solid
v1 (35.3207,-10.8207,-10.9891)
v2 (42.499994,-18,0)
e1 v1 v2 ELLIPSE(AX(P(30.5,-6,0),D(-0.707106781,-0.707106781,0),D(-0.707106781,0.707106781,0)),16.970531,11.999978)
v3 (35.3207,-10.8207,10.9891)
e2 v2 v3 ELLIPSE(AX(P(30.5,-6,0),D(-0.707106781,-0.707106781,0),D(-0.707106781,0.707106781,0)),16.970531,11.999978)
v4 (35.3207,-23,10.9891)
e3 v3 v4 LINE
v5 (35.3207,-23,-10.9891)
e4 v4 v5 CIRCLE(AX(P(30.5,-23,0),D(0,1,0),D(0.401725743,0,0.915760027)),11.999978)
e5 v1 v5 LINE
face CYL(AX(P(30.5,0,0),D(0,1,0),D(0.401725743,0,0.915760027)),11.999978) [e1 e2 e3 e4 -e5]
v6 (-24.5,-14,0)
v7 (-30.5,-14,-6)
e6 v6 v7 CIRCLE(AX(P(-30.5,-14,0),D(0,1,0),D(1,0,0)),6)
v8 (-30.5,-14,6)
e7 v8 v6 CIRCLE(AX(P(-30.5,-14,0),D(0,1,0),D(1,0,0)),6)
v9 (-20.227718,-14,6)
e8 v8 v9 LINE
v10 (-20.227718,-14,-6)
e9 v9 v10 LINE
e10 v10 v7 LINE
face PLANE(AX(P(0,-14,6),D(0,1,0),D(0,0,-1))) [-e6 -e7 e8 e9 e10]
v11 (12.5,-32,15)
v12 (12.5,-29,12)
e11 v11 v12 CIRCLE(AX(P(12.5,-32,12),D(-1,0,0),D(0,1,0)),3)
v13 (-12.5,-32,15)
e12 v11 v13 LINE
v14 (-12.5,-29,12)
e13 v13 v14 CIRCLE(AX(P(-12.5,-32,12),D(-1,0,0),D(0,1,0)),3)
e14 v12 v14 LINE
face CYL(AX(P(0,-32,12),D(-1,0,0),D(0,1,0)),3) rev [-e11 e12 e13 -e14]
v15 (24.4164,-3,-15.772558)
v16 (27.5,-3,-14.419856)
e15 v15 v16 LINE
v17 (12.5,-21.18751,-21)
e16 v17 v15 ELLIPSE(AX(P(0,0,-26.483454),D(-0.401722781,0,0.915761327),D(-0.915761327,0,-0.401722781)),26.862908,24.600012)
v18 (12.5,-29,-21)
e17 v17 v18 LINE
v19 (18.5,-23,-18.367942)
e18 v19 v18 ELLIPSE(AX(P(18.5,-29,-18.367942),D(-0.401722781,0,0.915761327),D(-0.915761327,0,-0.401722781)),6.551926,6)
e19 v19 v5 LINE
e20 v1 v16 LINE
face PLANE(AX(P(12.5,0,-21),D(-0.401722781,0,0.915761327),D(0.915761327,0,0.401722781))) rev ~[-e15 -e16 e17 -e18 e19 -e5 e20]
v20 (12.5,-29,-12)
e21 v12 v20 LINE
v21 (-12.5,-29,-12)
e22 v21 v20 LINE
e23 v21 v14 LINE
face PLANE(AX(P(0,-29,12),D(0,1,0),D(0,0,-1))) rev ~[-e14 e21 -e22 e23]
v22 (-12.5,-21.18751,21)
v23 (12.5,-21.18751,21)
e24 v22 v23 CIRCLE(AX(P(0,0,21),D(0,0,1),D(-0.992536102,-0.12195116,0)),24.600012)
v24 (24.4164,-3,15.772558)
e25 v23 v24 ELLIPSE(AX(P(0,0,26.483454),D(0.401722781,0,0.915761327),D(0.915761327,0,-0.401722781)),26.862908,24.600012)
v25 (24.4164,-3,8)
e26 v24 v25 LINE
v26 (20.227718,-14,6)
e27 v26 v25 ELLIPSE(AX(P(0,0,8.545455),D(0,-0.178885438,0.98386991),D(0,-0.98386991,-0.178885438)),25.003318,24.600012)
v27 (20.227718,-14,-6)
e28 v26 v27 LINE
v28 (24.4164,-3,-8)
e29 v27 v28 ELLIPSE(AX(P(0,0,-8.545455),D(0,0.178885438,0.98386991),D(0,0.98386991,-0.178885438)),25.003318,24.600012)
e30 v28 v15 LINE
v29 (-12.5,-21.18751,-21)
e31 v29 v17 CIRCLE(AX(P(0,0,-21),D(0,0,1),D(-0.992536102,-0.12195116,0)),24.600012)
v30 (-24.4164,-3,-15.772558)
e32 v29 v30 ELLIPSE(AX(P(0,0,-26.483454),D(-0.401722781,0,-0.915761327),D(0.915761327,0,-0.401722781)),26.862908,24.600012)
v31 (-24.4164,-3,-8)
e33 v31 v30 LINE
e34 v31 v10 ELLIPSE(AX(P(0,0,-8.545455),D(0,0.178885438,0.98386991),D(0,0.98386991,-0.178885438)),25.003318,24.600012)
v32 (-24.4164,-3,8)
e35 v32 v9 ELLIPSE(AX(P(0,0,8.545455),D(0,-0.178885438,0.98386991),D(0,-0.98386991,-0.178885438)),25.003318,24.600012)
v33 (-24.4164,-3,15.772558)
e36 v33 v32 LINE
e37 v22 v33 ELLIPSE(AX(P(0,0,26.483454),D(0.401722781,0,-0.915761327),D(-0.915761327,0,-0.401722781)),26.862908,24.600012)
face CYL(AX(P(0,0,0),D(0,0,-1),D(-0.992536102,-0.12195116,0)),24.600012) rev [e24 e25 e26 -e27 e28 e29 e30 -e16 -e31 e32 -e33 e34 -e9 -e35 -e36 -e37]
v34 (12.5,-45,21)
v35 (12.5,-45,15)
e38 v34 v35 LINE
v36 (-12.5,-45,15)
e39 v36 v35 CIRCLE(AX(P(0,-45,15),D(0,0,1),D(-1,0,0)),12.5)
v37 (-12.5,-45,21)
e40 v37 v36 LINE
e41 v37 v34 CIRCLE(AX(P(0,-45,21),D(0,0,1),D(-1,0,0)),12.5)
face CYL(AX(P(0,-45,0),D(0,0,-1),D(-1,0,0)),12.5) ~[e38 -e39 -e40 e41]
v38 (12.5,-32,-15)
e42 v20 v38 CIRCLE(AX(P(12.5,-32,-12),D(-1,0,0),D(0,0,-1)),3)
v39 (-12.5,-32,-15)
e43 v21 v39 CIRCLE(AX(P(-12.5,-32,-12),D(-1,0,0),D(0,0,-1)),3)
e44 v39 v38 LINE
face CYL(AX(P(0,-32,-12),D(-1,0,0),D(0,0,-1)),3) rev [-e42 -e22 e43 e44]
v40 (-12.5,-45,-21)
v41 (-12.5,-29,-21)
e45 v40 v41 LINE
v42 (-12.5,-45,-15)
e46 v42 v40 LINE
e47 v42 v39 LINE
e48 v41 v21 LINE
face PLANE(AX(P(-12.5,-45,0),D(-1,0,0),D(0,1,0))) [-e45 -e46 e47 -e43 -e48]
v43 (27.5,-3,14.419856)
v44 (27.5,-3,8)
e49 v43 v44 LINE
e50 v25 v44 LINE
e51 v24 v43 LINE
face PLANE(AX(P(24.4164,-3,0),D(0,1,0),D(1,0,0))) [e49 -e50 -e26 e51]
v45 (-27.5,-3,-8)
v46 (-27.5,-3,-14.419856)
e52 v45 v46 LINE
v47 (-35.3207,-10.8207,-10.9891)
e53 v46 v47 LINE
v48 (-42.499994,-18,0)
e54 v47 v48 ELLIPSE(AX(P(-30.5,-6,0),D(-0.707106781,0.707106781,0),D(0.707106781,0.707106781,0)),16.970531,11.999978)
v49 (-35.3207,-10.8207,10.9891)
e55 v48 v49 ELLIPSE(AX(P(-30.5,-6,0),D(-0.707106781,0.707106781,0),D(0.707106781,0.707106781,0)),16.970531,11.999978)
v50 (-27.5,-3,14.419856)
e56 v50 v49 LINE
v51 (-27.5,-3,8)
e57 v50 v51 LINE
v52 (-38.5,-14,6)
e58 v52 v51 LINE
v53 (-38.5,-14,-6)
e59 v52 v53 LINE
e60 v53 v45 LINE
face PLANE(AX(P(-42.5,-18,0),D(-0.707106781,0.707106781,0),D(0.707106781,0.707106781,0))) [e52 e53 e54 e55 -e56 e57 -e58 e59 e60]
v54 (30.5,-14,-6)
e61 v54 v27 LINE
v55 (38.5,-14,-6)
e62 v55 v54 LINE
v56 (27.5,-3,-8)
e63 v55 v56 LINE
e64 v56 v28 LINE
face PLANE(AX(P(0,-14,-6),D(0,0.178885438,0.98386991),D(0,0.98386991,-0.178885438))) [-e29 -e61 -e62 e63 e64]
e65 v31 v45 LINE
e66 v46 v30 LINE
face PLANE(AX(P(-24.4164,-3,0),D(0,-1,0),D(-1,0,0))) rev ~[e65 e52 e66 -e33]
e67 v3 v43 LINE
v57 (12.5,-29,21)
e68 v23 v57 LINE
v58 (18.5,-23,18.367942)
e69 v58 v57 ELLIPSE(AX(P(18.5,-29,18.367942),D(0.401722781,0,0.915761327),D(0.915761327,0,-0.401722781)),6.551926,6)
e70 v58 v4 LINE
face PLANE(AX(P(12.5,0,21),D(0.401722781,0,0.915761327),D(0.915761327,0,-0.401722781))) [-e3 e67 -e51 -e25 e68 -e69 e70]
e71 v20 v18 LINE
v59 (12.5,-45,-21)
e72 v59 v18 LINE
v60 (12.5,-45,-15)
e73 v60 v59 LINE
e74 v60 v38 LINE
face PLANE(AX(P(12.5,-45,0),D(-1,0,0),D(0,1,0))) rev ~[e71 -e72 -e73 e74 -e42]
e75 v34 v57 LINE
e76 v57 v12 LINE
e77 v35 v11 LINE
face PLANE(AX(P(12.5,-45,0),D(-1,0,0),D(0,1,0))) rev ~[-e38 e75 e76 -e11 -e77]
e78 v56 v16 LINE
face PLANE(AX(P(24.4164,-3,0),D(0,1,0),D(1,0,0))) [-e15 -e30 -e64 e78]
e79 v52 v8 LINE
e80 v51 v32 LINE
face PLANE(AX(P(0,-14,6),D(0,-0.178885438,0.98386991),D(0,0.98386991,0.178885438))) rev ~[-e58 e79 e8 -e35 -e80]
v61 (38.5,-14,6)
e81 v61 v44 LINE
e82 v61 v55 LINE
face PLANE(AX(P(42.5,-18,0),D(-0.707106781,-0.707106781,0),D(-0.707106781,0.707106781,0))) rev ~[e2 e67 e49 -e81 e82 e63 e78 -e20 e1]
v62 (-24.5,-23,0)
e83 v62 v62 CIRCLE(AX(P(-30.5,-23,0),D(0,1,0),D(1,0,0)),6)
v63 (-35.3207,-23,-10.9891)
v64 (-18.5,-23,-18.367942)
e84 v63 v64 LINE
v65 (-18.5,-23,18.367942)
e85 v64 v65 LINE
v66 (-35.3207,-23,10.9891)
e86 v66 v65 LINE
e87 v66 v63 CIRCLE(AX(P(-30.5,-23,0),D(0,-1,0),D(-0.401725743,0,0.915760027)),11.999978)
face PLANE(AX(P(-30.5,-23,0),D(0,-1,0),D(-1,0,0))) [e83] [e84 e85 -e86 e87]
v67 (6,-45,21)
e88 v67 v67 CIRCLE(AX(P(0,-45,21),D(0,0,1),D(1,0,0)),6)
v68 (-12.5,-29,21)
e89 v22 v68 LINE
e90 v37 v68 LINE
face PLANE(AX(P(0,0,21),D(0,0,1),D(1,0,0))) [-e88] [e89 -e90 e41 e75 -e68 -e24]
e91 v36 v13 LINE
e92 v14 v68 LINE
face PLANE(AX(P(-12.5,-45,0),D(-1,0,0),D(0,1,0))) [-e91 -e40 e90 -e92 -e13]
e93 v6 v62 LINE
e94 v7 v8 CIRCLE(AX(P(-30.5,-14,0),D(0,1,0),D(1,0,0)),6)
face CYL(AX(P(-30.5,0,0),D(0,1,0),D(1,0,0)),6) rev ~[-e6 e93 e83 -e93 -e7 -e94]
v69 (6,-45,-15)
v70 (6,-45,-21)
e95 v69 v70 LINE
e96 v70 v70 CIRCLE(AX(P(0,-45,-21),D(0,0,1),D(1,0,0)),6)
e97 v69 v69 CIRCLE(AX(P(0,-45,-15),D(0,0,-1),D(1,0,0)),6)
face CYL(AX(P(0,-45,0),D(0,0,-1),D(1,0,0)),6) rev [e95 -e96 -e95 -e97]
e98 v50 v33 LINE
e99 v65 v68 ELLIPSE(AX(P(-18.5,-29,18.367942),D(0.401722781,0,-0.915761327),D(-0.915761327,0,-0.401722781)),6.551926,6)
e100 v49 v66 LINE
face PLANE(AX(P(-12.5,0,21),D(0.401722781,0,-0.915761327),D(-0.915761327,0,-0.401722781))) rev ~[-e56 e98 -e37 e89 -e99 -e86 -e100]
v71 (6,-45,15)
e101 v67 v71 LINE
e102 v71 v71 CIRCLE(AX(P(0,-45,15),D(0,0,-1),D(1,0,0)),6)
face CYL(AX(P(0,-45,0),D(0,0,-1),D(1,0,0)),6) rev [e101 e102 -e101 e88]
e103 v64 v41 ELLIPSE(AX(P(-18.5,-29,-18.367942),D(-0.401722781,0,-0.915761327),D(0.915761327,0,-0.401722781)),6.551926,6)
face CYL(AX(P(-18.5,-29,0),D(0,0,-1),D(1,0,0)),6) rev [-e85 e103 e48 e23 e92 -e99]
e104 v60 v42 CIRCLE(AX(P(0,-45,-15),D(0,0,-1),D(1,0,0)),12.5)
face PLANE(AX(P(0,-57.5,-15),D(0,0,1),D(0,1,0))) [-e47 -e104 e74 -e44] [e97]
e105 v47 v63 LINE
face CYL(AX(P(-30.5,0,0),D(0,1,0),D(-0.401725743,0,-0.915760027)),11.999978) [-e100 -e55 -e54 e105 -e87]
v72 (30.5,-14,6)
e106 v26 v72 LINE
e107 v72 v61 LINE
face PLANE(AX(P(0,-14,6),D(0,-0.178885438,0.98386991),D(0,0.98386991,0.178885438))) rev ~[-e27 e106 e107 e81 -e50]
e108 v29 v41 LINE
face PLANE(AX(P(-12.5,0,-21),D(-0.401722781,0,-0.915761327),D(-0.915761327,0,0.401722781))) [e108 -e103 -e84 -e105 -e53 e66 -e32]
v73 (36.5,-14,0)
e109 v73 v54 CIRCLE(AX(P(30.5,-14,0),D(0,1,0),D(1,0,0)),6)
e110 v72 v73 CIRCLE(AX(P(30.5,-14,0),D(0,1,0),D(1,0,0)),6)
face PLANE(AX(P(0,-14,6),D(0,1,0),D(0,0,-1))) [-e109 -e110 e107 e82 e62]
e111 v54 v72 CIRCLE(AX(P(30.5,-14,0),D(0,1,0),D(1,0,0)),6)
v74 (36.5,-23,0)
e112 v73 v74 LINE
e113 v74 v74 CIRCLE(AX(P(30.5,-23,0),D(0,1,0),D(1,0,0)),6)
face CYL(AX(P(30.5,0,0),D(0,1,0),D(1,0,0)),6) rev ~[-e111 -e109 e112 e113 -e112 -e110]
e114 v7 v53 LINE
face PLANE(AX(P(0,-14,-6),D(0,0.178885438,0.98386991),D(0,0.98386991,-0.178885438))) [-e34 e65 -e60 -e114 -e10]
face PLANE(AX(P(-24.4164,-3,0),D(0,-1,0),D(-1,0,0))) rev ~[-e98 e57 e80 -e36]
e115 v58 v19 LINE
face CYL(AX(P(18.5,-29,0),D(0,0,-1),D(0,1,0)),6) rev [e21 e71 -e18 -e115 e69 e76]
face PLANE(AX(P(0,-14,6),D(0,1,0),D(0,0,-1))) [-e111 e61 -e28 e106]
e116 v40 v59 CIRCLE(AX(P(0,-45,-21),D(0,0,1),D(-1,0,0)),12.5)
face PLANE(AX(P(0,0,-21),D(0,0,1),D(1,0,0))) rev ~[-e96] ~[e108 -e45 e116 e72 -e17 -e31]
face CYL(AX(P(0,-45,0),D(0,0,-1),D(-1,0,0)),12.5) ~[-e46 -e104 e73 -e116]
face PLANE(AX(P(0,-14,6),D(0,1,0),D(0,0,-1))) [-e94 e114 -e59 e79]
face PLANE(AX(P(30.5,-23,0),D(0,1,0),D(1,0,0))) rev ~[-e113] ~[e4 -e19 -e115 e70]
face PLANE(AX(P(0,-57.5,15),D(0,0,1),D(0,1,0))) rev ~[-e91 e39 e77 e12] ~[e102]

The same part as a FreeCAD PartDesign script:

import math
import FreeCAD as App
import Part
import Sketcher
from FreeCAD import Vector
Q = App.Units.Quantity


def add_polygon(sketch, points):
    """Adds a closed chain of lines whose ends are joined by coincident constraints."""
    first, n = sketch.GeometryCount, len(points)
    for a, b in zip(points, points[1:] + points[:1]):
        sketch.addGeometry(Part.LineSegment(App.Vector(*a, 0), App.Vector(*b, 0)), False)
    for i in range(n):
        sketch.addConstraint(Sketcher.Constraint("Coincident", first + i, 2, first + (i + 1) % n, 1))

doc = App.newDocument("Part")
body = doc.addObject("PartDesign::Body", "Body")

# Sketch on XY plane
sketch1 = body.newObject("Sketcher::SketchObject", "Sketch")
sketch1.AttachmentSupport = (doc.getObject("XY_Plane"), [""])
sketch1.MapMode = "FlatFace"
sketch1.addGeometry([
    Part.LineSegment(Vector(-42.5, -23, 0), Vector(-18.5, -23, 0)),  # 0
    Part.ArcOfCircle(Part.Circle(Vector(-18.5, -29, 0), Vector(0, 0, 1), 6), math.radians(0), math.radians(90)),  # 1
    Part.LineSegment(Vector(-12.5, -29, 0), Vector(-12.5, -45, 0)),  # 2
    Part.ArcOfCircle(Part.Circle(Vector(0, -45, 0), Vector(0, 0, 1), 12.5), math.radians(180), math.radians(360)),  # 3
    Part.LineSegment(Vector(12.5, -45, 0), Vector(12.5, -29, 0)),  # 4
    Part.ArcOfCircle(Part.Circle(Vector(18.5, -29, 0), Vector(0, 0, 1), 6), math.radians(90), math.radians(180)),  # 5
    Part.LineSegment(Vector(18.5, -23, 0), Vector(42.5, -23, 0)),  # 6
    Part.LineSegment(Vector(42.5, -23, 0), Vector(42.5, -18, 0)),  # 7
    Part.LineSegment(Vector(42.5, -18, 0), Vector(27.5, -3, 0)),  # 8
    Part.LineSegment(Vector(27.5, -3, 0), Vector(24.4, -3, 0)),  # 9
    Part.ArcOfCircle(Part.Circle(Vector(0, 0, 0), Vector(0, 0, 1), 24.6), math.radians(-173), math.radians(-7)),  # 10
    Part.LineSegment(Vector(-24.4, -3, 0), Vector(-27.5, -3, 0)),  # 11
    Part.LineSegment(Vector(-27.5, -3, 0), Vector(-42.5, -18, 0)),  # 12
    Part.LineSegment(Vector(-42.5, -18, 0), Vector(-42.5, -23, 0)),  # 13
    Part.Circle(Vector(0, -45, 0), Vector(0, 0, 1), 6),  # 14
], False)
sketch1.addConstraint([
    Sketcher.Constraint("Tangent", 0, 2, 1, 2),
    Sketcher.Constraint("Tangent", 1, 1, 2, 1),
    Sketcher.Constraint("Tangent", 2, 2, 3, 1),
    Sketcher.Constraint("Tangent", 3, 2, 4, 1),
    Sketcher.Constraint("Tangent", 4, 2, 5, 2),
    Sketcher.Constraint("Tangent", 5, 1, 6, 1),
    Sketcher.Constraint("Coincident", 6, 2, 7, 1),
    Sketcher.Constraint("Coincident", 7, 2, 8, 1),
    Sketcher.Constraint("Coincident", 8, 2, 9, 1),
    Sketcher.Constraint("Coincident", 9, 2, 10, 2),
    Sketcher.Constraint("Coincident", 10, 1, 11, 1),
    Sketcher.Constraint("Coincident", 11, 2, 12, 1),
    Sketcher.Constraint("Coincident", 12, 2, 13, 1),
    Sketcher.Constraint("Coincident", 13, 2, 0, 1),
    Sketcher.Constraint("Horizontal", 0),
    Sketcher.Constraint("Vertical", 2),
    Sketcher.Constraint("Vertical", 4),
    Sketcher.Constraint("Horizontal", 6),
    Sketcher.Constraint("Vertical", 7),
    Sketcher.Constraint("Horizontal", 9),
    Sketcher.Constraint("Horizontal", 11),
    Sketcher.Constraint("Vertical", 13),
    Sketcher.Constraint("Coincident", 10, 3, -1, 1),
    Sketcher.Constraint("Coincident", 14, 3, 3, 3),
    Sketcher.Constraint("Equal", 1, 5),
    Sketcher.Constraint("Equal", 5, 14),
    Sketcher.Constraint("Symmetric", 1, 3, 5, 3, -2),
    Sketcher.Constraint("Symmetric", 8, 2, 11, 2, -2),
    Sketcher.Constraint("Symmetric", 7, 2, 12, 2, -2),
    Sketcher.Constraint("Perpendicular", 8, 12),
    Sketcher.Constraint("Diameter", 14, Q("12 mm")),
    Sketcher.Constraint("Radius", 3, Q("12.5 mm")),
    Sketcher.Constraint("Radius", 10, Q("24.6 mm")),
    Sketcher.Constraint("DistanceY", 7, 1, 7, 2, Q("5 mm")),
    Sketcher.Constraint("DistanceY", 3, 3, -1, 1, Q("45 mm")),
    Sketcher.Constraint("DistanceY", 0, 2, -1, 1, Q("23 mm")),
    Sketcher.Constraint("DistanceY", 8, 2, -1, 1, Q("3 mm")),
    Sketcher.Constraint("DistanceX", 0, 1, 0, 2, Q("24 mm")),
])
pad1 = body.newObject("PartDesign::Pad", "Pad")
pad1.Profile = sketch1
pad1.Length = 42
pad1.Midplane = True

# Sketch on XZ plane
sketch2 = body.newObject("Sketcher::SketchObject", "Sketch001")
sketch2.AttachmentSupport = (doc.getObject("XZ_Plane"), [""])
sketch2.MapMode = "FlatFace"
sketch2.addGeometry([
    Part.LineSegment(Vector(-35, -11, 0), Vector(-12, -21, 0)),  # 0
    Part.LineSegment(Vector(-12, -21, 0), Vector(-42, -21, 0)),  # 1
    Part.LineSegment(Vector(-42, -21, 0), Vector(-42, 0, 0)),  # 2
    Part.ArcOfCircle(Part.Circle(Vector(-30, 0, 0), Vector(0, 0, 1), 12), math.radians(180), math.radians(246)),  # 3
    Part.LineSegment(Vector(42, -21, 0), Vector(12, -21, 0)),  # 4
    Part.LineSegment(Vector(12, -21, 0), Vector(35, -11, 0)),  # 5
    Part.ArcOfCircle(Part.Circle(Vector(30, 0, 0), Vector(0, 0, 1), 12), math.radians(-66), math.radians(0)),  # 6
    Part.LineSegment(Vector(42, 0, 0), Vector(42, -21, 0)),  # 7
    Part.ArcOfCircle(Part.Circle(Vector(-30, 0, 0), Vector(0, 0, 1), 12), math.radians(114), math.radians(180)),  # 8
    Part.LineSegment(Vector(-42, 0, 0), Vector(-42, 21, 0)),  # 9
    Part.LineSegment(Vector(-42, 21, 0), Vector(-12, 21, 0)),  # 10
    Part.LineSegment(Vector(-12, 21, 0), Vector(-35, 11, 0)),  # 11
    Part.LineSegment(Vector(42, 21, 0), Vector(42, 0, 0)),  # 12
    Part.ArcOfCircle(Part.Circle(Vector(30, 0, 0), Vector(0, 0, 1), 12), math.radians(0), math.radians(66)),  # 13
    Part.LineSegment(Vector(35, 11, 0), Vector(12, 21, 0)),  # 14
    Part.LineSegment(Vector(12, 21, 0), Vector(42, 21, 0)),  # 15
    Part.Circle(Vector(30, 0, 0), Vector(0, 0, 1), 6),  # 16
    Part.Circle(Vector(-30, 0, 0), Vector(0, 0, 1), 6),  # 17
], False)
sketch2.addConstraint([
    Sketcher.Constraint("Coincident", 0, 2, 1, 1),
    Sketcher.Constraint("Coincident", 1, 2, 2, 1),
    Sketcher.Constraint("Tangent", 2, 2, 3, 1),
    Sketcher.Constraint("Tangent", 3, 2, 0, 1),
    Sketcher.Constraint("Coincident", 4, 2, 5, 1),
    Sketcher.Constraint("Tangent", 5, 2, 6, 1),
    Sketcher.Constraint("Tangent", 6, 2, 7, 1),
    Sketcher.Constraint("Coincident", 7, 2, 4, 1),
    Sketcher.Constraint("Tangent", 8, 2, 9, 1),
    Sketcher.Constraint("Coincident", 9, 2, 10, 1),
    Sketcher.Constraint("Coincident", 10, 2, 11, 1),
    Sketcher.Constraint("Tangent", 11, 2, 8, 1),
    Sketcher.Constraint("Tangent", 12, 2, 13, 1),
    Sketcher.Constraint("Tangent", 13, 2, 14, 1),
    Sketcher.Constraint("Coincident", 14, 2, 15, 1),
    Sketcher.Constraint("Coincident", 15, 2, 12, 1),
    Sketcher.Constraint("Horizontal", 1),
    Sketcher.Constraint("Vertical", 2),
    Sketcher.Constraint("Horizontal", 4),
    Sketcher.Constraint("Vertical", 7),
    Sketcher.Constraint("Vertical", 9),
    Sketcher.Constraint("Horizontal", 10),
    Sketcher.Constraint("Vertical", 12),
    Sketcher.Constraint("Horizontal", 15),
    Sketcher.Constraint("Coincident", 8, 3, 3, 3),
    Sketcher.Constraint("Coincident", 13, 3, 6, 3),
    Sketcher.Constraint("Coincident", 16, 3, 6, 3),
    Sketcher.Constraint("Coincident", 17, 3, 3, 3),
    Sketcher.Constraint("Equal", 3, 6),
    Sketcher.Constraint("Equal", 6, 8),
    Sketcher.Constraint("Equal", 8, 13),
    Sketcher.Constraint("Equal", 16, 17),
    Sketcher.Constraint("Symmetric", 3, 3, 6, 3, -1, 1),
    Sketcher.Constraint("Symmetric", 4, 2, 10, 2, -1, 1),
    Sketcher.Constraint("Symmetric", 0, 2, 14, 2, -1, 1),
    Sketcher.Constraint("Symmetric", 0, 2, 4, 2, -2),
    Sketcher.Constraint("PointOnObject", 3, 3, -1),
    Sketcher.Constraint("Diameter", 16, Q("12 mm")),
    Sketcher.Constraint("Radius", 3, Q("12 mm")),
    Sketcher.Constraint("DistanceX", 0, 2, -1, 1, Q("12.5 mm")),
    Sketcher.Constraint("DistanceX", 1, 2, 1, 1, Q("30 mm")),
    Sketcher.Constraint("DistanceY", 2, 1, 2, 2, Q("21 mm")),
])
pocket1 = body.newObject("PartDesign::Pocket", "Pocket")
pocket1.Profile = sketch2
pocket1.Type = "ThroughAll"
pocket1.Reversed = True

# Sketch on YZ plane
sketch3 = body.newObject("Sketcher::SketchObject", "Sketch002")
sketch3.AttachmentSupport = (doc.getObject("YZ_Plane"), [""])
sketch3.MapMode = "FlatFace"
sketch3.addGeometry(Part.LineSegment(Vector(-57.5, 15, 0), Vector(-57.5, -15, 0)), False)  # 0
sketch3.addGeometry(Part.LineSegment(Vector(-57.5, -15, 0), Vector(-32, -15, 0)), False)  # 1
sketch3.addGeometry(Part.ArcOfCircle(Part.Circle(Vector(-32, -12, 0), Vector(0, 0, 1), 3), math.radians(-90), math.radians(0)), False)  # 2
sketch3.addGeometry(Part.LineSegment(Vector(-29, -12, 0), Vector(-29, 12, 0)), False)  # 3
sketch3.addGeometry(Part.ArcOfCircle(Part.Circle(Vector(-32, 12, 0), Vector(0, 0, 1), 3), math.radians(0), math.radians(90)), False)  # 4
sketch3.addGeometry(Part.LineSegment(Vector(-32, 15, 0), Vector(-57.5, 15, 0)), False)  # 5
add_polygon(sketch3, [(-3, -8), (-3, 8), (-14, 6), (-14, -6)])  # lines 6-9
sketch3.addConstraint([
    Sketcher.Constraint("Coincident", 0, 2, 1, 1),
    Sketcher.Constraint("Tangent", 1, 2, 2, 1),
    Sketcher.Constraint("Tangent", 2, 2, 3, 1),
    Sketcher.Constraint("Tangent", 3, 2, 4, 1),
    Sketcher.Constraint("Tangent", 4, 2, 5, 1),
    Sketcher.Constraint("Coincident", 5, 2, 0, 1),
    Sketcher.Constraint("Vertical", 0),
    Sketcher.Constraint("Horizontal", 1),
    Sketcher.Constraint("Vertical", 3),
    Sketcher.Constraint("Horizontal", 5),
    Sketcher.Constraint("Vertical", 6),
    Sketcher.Constraint("Vertical", 8),
    Sketcher.Constraint("Equal", 2, 4),
    Sketcher.Constraint("Equal", 7, 9),
    Sketcher.Constraint("Radius", 2, Q("3 mm")),
    Sketcher.Constraint("DistanceX", 6, 2, -1, 1, Q("3 mm")),
    Sketcher.Constraint("DistanceY", -1, 1, 6, 2, Q("8 mm")),
    Sketcher.Constraint("DistanceY", -1, 1, 7, 2, Q("6 mm")),
    Sketcher.Constraint("DistanceY", 8, 2, -1, 1, Q("6 mm")),
    Sketcher.Constraint("DistanceX", 7, 2, 6, 2, Q("11 mm")),
    Sketcher.Constraint("DistanceY", 7, 2, 3, 2, Q("6 mm")),
    Sketcher.Constraint("DistanceY", 2, 2, 8, 2, Q("6 mm")),
    Sketcher.Constraint("DistanceX", 1, 1, 1, 2, Q("25.5 mm")),
    Sketcher.Constraint("DistanceX", 2, 3, -1, 1, Q("32 mm")),
])
pocket2 = body.newObject("PartDesign::Pocket", "Pocket001")
pocket2.Profile = sketch3
pocket2.Type = "ThroughAll"
pocket2.Midplane = True

doc.recompute()
